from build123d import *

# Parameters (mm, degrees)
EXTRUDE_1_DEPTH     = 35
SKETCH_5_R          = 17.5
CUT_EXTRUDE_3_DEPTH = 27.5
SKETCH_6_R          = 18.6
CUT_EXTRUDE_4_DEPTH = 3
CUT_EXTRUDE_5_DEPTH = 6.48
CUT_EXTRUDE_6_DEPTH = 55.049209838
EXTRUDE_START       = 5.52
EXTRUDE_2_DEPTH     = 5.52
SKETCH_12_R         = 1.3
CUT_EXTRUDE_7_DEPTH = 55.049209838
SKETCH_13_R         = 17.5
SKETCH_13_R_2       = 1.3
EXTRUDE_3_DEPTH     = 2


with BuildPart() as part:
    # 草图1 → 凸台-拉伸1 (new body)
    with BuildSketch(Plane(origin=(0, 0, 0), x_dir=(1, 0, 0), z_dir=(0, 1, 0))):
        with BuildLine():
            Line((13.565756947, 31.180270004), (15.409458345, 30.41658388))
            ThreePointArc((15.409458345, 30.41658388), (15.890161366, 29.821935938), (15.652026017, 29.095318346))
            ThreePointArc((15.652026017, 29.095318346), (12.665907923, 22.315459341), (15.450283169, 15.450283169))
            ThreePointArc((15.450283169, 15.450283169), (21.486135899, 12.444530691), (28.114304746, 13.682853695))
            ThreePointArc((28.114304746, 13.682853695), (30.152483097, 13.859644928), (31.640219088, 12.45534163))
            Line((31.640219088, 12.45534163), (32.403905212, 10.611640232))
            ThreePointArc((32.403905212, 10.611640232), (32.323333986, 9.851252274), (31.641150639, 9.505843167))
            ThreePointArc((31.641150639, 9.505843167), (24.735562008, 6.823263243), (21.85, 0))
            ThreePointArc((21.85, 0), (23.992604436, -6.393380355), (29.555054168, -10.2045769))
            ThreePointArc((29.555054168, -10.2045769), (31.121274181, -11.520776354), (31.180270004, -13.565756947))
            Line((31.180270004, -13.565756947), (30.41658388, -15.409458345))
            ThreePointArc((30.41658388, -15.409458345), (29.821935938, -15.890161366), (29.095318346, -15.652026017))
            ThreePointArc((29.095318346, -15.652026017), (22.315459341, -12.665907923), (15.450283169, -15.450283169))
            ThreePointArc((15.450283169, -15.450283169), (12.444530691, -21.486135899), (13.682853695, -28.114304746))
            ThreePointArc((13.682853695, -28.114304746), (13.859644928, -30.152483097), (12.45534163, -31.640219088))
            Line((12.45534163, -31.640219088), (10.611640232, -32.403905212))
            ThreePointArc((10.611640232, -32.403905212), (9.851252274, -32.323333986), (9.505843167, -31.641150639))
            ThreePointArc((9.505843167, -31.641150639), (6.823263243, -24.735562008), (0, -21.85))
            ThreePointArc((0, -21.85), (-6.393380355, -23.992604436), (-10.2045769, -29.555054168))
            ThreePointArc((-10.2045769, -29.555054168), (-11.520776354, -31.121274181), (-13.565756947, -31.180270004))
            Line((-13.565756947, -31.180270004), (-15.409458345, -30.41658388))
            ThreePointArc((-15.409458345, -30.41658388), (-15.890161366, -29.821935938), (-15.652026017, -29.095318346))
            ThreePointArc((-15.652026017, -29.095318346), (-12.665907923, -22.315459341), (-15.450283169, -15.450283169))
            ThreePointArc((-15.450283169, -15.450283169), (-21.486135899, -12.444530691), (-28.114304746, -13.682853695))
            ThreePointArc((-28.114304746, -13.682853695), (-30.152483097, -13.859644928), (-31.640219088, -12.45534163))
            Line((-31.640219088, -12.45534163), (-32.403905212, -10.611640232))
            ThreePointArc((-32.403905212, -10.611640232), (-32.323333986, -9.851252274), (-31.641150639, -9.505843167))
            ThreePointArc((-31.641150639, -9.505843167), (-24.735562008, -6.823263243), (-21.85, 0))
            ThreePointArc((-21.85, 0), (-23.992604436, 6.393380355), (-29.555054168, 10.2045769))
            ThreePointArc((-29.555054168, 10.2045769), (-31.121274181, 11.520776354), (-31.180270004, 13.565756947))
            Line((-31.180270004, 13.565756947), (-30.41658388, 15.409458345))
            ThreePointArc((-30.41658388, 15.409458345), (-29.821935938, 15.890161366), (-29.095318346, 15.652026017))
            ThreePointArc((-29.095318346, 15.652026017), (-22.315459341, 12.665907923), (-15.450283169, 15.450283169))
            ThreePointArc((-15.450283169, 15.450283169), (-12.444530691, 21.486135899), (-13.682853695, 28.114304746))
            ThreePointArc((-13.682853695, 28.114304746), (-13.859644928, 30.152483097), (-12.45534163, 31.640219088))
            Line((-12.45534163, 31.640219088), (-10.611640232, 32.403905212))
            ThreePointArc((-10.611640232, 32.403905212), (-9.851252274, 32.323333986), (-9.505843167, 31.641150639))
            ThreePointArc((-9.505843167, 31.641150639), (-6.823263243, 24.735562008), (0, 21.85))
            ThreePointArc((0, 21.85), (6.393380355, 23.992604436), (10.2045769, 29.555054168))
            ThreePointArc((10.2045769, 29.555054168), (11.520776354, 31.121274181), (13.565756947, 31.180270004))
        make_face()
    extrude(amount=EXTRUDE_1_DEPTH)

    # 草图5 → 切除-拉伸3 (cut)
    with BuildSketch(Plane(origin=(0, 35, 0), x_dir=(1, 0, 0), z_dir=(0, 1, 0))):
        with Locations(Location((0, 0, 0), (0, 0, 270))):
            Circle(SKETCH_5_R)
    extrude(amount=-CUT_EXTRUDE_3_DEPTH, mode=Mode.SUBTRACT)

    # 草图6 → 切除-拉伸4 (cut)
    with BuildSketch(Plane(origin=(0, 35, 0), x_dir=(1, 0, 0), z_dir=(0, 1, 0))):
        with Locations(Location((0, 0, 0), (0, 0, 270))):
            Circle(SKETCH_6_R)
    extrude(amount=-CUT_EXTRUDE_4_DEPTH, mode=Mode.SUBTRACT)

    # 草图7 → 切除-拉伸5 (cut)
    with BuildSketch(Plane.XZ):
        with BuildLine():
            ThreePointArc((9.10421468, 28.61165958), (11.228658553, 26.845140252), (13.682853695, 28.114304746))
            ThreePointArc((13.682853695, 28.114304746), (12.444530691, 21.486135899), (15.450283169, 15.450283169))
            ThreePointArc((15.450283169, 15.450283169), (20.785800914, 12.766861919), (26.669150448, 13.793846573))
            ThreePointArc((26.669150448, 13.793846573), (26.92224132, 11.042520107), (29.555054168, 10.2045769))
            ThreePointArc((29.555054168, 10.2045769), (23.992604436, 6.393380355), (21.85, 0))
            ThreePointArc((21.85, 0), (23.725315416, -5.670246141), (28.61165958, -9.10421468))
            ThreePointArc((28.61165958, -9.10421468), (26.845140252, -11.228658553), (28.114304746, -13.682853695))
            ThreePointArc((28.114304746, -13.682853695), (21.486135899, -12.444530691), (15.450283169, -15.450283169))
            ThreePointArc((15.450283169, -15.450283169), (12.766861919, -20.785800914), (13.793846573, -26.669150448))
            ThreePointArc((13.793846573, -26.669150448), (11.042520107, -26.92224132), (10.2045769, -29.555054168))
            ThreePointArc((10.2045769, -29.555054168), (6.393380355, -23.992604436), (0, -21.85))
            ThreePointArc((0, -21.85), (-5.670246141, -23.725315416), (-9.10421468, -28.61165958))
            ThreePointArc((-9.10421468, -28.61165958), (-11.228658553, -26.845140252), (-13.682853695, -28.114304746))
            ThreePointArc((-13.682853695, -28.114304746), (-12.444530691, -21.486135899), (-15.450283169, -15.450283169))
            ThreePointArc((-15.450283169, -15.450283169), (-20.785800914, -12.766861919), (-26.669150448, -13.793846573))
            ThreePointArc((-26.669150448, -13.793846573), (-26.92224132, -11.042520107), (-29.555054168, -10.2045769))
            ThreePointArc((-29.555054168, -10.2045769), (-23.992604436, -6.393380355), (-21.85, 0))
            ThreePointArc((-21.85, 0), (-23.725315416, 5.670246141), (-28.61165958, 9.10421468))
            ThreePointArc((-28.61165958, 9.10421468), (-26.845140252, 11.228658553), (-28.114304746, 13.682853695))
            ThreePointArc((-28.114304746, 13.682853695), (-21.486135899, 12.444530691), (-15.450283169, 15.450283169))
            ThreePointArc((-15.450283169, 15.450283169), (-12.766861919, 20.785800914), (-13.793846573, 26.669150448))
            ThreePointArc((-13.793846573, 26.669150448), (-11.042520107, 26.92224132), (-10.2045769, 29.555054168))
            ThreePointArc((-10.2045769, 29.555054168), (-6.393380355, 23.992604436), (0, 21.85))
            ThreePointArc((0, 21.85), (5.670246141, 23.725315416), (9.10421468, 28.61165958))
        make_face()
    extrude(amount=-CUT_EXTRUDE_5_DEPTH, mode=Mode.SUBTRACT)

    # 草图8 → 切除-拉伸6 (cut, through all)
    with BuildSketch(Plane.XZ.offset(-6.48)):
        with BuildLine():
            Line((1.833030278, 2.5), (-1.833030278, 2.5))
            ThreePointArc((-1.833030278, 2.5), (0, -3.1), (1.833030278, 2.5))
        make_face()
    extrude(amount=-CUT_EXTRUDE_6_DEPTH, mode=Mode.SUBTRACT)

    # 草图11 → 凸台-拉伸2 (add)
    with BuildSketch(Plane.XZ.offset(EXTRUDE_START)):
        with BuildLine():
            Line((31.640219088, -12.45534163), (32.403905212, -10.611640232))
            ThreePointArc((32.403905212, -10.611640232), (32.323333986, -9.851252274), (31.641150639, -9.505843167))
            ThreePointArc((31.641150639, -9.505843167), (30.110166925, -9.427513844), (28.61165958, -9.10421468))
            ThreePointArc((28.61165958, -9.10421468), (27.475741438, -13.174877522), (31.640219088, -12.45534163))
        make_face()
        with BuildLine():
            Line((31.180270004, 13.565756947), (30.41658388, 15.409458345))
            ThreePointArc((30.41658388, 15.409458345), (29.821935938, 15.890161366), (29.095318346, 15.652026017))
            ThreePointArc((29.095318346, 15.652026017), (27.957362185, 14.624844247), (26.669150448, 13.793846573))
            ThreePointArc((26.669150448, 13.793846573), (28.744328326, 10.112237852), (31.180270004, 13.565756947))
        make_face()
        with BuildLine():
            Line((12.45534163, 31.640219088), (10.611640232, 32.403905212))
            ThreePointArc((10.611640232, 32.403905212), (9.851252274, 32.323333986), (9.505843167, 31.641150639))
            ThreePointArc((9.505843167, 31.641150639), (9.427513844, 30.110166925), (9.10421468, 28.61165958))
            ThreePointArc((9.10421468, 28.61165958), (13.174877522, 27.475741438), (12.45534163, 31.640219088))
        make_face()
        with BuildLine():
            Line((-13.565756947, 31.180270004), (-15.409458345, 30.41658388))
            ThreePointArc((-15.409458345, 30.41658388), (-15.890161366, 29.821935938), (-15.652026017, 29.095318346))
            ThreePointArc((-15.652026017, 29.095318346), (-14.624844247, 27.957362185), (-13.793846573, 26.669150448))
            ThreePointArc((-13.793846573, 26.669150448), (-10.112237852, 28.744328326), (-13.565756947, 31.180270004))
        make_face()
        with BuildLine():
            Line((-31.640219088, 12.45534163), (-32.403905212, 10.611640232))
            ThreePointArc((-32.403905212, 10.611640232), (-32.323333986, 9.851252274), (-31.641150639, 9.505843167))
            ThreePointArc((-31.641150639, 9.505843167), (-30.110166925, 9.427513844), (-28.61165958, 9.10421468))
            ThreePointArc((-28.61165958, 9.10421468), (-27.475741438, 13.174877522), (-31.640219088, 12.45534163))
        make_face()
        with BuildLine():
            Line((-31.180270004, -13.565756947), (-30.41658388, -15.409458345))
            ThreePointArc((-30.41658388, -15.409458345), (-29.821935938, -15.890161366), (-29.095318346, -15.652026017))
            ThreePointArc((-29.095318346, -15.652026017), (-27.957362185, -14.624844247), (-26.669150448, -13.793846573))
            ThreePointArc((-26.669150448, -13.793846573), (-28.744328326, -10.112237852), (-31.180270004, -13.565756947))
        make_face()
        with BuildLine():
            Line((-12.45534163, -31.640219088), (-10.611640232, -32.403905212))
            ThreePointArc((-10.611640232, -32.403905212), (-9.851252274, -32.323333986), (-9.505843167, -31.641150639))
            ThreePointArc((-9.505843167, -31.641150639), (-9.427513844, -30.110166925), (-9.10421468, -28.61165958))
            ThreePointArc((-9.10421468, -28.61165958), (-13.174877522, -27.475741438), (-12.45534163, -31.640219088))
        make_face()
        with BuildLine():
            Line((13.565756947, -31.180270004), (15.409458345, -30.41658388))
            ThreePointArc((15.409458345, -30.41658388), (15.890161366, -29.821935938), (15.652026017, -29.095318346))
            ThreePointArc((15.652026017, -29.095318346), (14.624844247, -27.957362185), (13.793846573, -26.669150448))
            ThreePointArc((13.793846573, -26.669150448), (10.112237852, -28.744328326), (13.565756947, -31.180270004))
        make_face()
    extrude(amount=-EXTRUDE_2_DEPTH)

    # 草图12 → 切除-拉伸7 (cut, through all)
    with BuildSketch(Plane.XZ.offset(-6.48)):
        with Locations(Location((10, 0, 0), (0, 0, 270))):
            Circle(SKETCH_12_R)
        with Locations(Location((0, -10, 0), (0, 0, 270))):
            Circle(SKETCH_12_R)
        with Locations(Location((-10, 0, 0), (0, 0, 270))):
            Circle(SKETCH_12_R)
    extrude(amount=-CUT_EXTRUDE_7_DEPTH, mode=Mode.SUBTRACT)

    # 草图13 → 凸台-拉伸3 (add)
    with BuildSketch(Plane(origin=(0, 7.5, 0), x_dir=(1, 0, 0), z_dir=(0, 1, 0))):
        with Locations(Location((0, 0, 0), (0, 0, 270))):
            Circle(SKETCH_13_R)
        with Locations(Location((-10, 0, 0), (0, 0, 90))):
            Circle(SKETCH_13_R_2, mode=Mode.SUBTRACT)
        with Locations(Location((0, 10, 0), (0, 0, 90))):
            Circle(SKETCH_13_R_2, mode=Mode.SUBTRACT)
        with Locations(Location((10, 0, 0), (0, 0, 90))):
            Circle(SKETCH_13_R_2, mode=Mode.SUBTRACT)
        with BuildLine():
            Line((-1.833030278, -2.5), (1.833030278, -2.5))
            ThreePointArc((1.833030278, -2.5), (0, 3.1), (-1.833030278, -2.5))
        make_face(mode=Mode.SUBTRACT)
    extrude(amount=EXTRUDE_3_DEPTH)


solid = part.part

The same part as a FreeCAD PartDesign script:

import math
import FreeCAD as App
import Part
import Sketcher
from FreeCAD import Vector
Q = App.Units.Quantity

doc = App.newDocument("Part")
body = doc.addObject("PartDesign::Body", "Body")

# Sketch on XZ plane
sketch1 = doc.addObject("Sketcher::SketchObject", "Sketch")
body.addObject(sketch1)
sketch1.AttachmentSupport = (doc.XZ_Plane, [""])
sketch1.MapMode = "FlatFace"
sketch1.addGeometry([
    Part.LineSegment(Vector(15.4, -30.4, 0), Vector(13.6, -31.2, 0)),  # 0
    Part.ArcOfCircle(Part.Circle(Vector(12.6, -28.9, 0), Vector(0, 0, 1), 2.5), math.radians(-164), math.radians(-67)),  # 1
    Part.ArcOfCircle(Part.Circle(Vector(0, -32.5, 0), Vector(0, 0, 1), 10.6), math.radians(16), math.radians(90)),  # 2
    Part.ArcOfCircle(Part.Circle(Vector(0, -31.4, 0), Vector(0, 0, 1), 9.5), math.radians(90), math.radians(182)),  # 3
    Part.ArcOfCircle(Part.Circle(Vector(-10.3, -31.7, 0), Vector(0, 0, 1), 0.8), math.radians(-113), math.radians(2)),  # 4
    Part.LineSegment(Vector(-10.6, -32.4, 0), Vector(-12.5, -31.6, 0)),  # 5
    Part.ArcOfCircle(Part.Circle(Vector(-11.5, -29.3, 0), Vector(0, 0, 1), 2.5), math.radians(151), math.radians(248)),  # 6
    Part.ArcOfCircle(Part.Circle(Vector(-23, -23, 0), Vector(0, 0, 1), 10.6), math.radians(-29), math.radians(45)),  # 7
    Part.ArcOfCircle(Part.Circle(Vector(-22.2, -22.2, 0), Vector(0, 0, 1), 9.5), math.radians(45), math.radians(137)),  # 8
    Part.ArcOfCircle(Part.Circle(Vector(-29.7, -15.1, 0), Vector(0, 0, 1), 0.8), math.radians(-158), math.radians(-43)),  # 9
    Part.LineSegment(Vector(-30.4, -15.4, 0), Vector(-31.2, -13.6, 0)),  # 10
    Part.ArcOfCircle(Part.Circle(Vector(-28.9, -12.6, 0), Vector(0, 0, 1), 2.5), math.radians(106), math.radians(203)),  # 11
    Part.ArcOfCircle(Part.Circle(Vector(-32.5, 0, 0), Vector(0, 0, 1), 10.6), math.radians(-74), math.radians(0)),  # 12
    Part.ArcOfCircle(Part.Circle(Vector(-31.4, 0, 0), Vector(0, 0, 1), 9.5), math.radians(0), math.radians(92)),  # 13
    Part.ArcOfCircle(Part.Circle(Vector(-31.7, 10.3, 0), Vector(0, 0, 1), 0.8), math.radians(157), math.radians(272)),  # 14
    Part.LineSegment(Vector(-32.4, 10.6, 0), Vector(-31.6, 12.5, 0)),  # 15
    Part.ArcOfCircle(Part.Circle(Vector(-29.3, 11.5, 0), Vector(0, 0, 1), 2.5), math.radians(61), math.radians(158)),  # 16
    Part.ArcOfCircle(Part.Circle(Vector(-23, 23, 0), Vector(0, 0, 1), 10.6), math.radians(-119), math.radians(-45)),  # 17
    Part.ArcOfCircle(Part.Circle(Vector(-22.2, 22.2, 0), Vector(0, 0, 1), 9.5), math.radians(-45), math.radians(47)),  # 18
    Part.ArcOfCircle(Part.Circle(Vector(-15.1, 29.7, 0), Vector(0, 0, 1), 0.8), math.radians(112), math.radians(227)),  # 19
    Part.LineSegment(Vector(-15.4, 30.4, 0), Vector(-13.6, 31.2, 0)),  # 20
    Part.ArcOfCircle(Part.Circle(Vector(-12.6, 28.9, 0), Vector(0, 0, 1), 2.5), math.radians(16), math.radians(113)),  # 21
    Part.ArcOfCircle(Part.Circle(Vector(0, 32.5, 0), Vector(0, 0, 1), 10.6), math.radians(-164), math.radians(-90)),  # 22
    Part.ArcOfCircle(Part.Circle(Vector(0, 31.4, 0), Vector(0, 0, 1), 9.5), math.radians(-90), math.radians(2)),  # 23
    Part.ArcOfCircle(Part.Circle(Vector(10.3, 31.7, 0), Vector(0, 0, 1), 0.8), math.radians(67), math.radians(182)),  # 24
    Part.LineSegment(Vector(10.6, 32.4, 0), Vector(12.5, 31.6, 0)),  # 25
    Part.ArcOfCircle(Part.Circle(Vector(11.5, 29.3, 0), Vector(0, 0, 1), 2.5), math.radians(-29), math.radians(68)),  # 26
    Part.ArcOfCircle(Part.Circle(Vector(23, 23, 0), Vector(0, 0, 1), 10.6), math.radians(151), math.radians(225)),  # 27
    Part.ArcOfCircle(Part.Circle(Vector(22.2, 22.2, 0), Vector(0, 0, 1), 9.5), math.radians(-135), math.radians(-43)),  # 28
    Part.ArcOfCircle(Part.Circle(Vector(29.7, 15.1, 0), Vector(0, 0, 1), 0.8), math.radians(22), math.radians(137)),  # 29
    Part.LineSegment(Vector(30.4, 15.4, 0), Vector(31.2, 13.6, 0)),  # 30
    Part.ArcOfCircle(Part.Circle(Vector(28.9, 12.6, 0), Vector(0, 0, 1), 2.5), math.radians(-74), math.radians(23)),  # 31
    Part.ArcOfCircle(Part.Circle(Vector(32.5, 0, 0), Vector(0, 0, 1), 10.6), math.radians(106), math.radians(180)),  # 32
    Part.ArcOfCircle(Part.Circle(Vector(31.4, 0, 0), Vector(0, 0, 1), 9.5), math.radians(-180), math.radians(-88)),  # 33
    Part.ArcOfCircle(Part.Circle(Vector(31.7, -10.3, 0), Vector(0, 0, 1), 0.8), math.radians(-23), math.radians(92)),  # 34
    Part.LineSegment(Vector(32.4, -10.6, 0), Vector(31.6, -12.5, 0)),  # 35
    Part.ArcOfCircle(Part.Circle(Vector(29.3, -11.5, 0), Vector(0, 0, 1), 2.5), math.radians(-119), math.radians(-22)),  # 36
    Part.ArcOfCircle(Part.Circle(Vector(23, -23, 0), Vector(0, 0, 1), 10.6), math.radians(61), math.radians(135)),  # 37
    Part.ArcOfCircle(Part.Circle(Vector(22.2, -22.2, 0), Vector(0, 0, 1), 9.5), math.radians(135), math.radians(227)),  # 38
    Part.ArcOfCircle(Part.Circle(Vector(15.1, -29.7, 0), Vector(0, 0, 1), 0.8), math.radians(-68), math.radians(47)),  # 39
], False)
sketch1.addConstraint([
    Sketcher.Constraint("Tangent", 0, 2, 1, 2),
    Sketcher.Constraint("Tangent", 1, 1, 2, 1),
    Sketcher.Constraint("Tangent", 2, 2, 3, 1),
    Sketcher.Constraint("Tangent", 3, 2, 4, 2),
    Sketcher.Constraint("Tangent", 4, 1, 5, 1),
    Sketcher.Constraint("Tangent", 5, 2, 6, 2),
    Sketcher.Constraint("Tangent", 6, 1, 7, 1),
    Sketcher.Constraint("Tangent", 7, 2, 8, 1),
    Sketcher.Constraint("Tangent", 8, 2, 9, 2),
    Sketcher.Constraint("Tangent", 9, 1, 10, 1),
    Sketcher.Constraint("Tangent", 10, 2, 11, 2),
    Sketcher.Constraint("Tangent", 11, 1, 12, 1),
    Sketcher.Constraint("Tangent", 12, 2, 13, 1),
    Sketcher.Constraint("Tangent", 13, 2, 14, 2),
    Sketcher.Constraint("Tangent", 14, 1, 15, 1),
    Sketcher.Constraint("Tangent", 15, 2, 16, 2),
    Sketcher.Constraint("Tangent", 16, 1, 17, 1),
    Sketcher.Constraint("Tangent", 17, 2, 18, 1),
    Sketcher.Constraint("Tangent", 18, 2, 19, 2),
    Sketcher.Constraint("Tangent", 19, 1, 20, 1),
    Sketcher.Constraint("Tangent", 20, 2, 21, 2),
    Sketcher.Constraint("Tangent", 21, 1, 22, 1),
    Sketcher.Constraint("Tangent", 22, 2, 23, 1),
    Sketcher.Constraint("Tangent", 23, 2, 24, 2),
    Sketcher.Constraint("Tangent", 24, 1, 25, 1),
    Sketcher.Constraint("Tangent", 25, 2, 26, 2),
    Sketcher.Constraint("Tangent", 26, 1, 27, 1),
    Sketcher.Constraint("Tangent", 27, 2, 28, 1),
    Sketcher.Constraint("Tangent", 28, 2, 29, 2),
    Sketcher.Constraint("Tangent", 29, 1, 30, 1),
    Sketcher.Constraint("Tangent", 30, 2, 31, 2),
    Sketcher.Constraint("Tangent", 31, 1, 32, 1),
    Sketcher.Constraint("Tangent", 32, 2, 33, 1),
    Sketcher.Constraint("Tangent", 33, 2, 34, 2),
    Sketcher.Constraint("Tangent", 34, 1, 35, 1),
    Sketcher.Constraint("Tangent", 35, 2, 36, 2),
    Sketcher.Constraint("Tangent", 36, 1, 37, 1),
    Sketcher.Constraint("Tangent", 37, 2, 38, 1),
    Sketcher.Constraint("Tangent", 38, 2, 39, 2),
    Sketcher.Constraint("Tangent", 39, 1, 0, 1),
    Sketcher.Constraint("Equal", 1, 6),
    Sketcher.Constraint("Equal", 2, 7),
    Sketcher.Constraint("Equal", 3, 8),
    Sketcher.Constraint("Equal", 4, 9),
    Sketcher.Constraint("Equal", 6, 11),
    Sketcher.Constraint("Equal", 7, 12),
    Sketcher.Constraint("Equal", 8, 13),
    Sketcher.Constraint("Equal", 9, 14),
    Sketcher.Constraint("Equal", 11, 16),
    Sketcher.Constraint("Equal", 12, 17),
    Sketcher.Constraint("Equal", 13, 18),
    Sketcher.Constraint("Equal", 14, 19),
    Sketcher.Constraint("Equal", 16, 21),
    Sketcher.Constraint("Equal", 17, 22),
    Sketcher.Constraint("Equal", 18, 23),
    Sketcher.Constraint("Equal", 19, 24),
    Sketcher.Constraint("Equal", 21, 26),
    Sketcher.Constraint("Equal", 22, 27),
    Sketcher.Constraint("Equal", 23, 28),
    Sketcher.Constraint("Equal", 24, 29),
    Sketcher.Constraint("Equal", 26, 31),
    Sketcher.Constraint("Equal", 27, 32),
    Sketcher.Constraint("Equal", 28, 33),
    Sketcher.Constraint("Equal", 29, 34),
    Sketcher.Constraint("Equal", 31, 36),
    Sketcher.Constraint("Equal", 32, 37),
    Sketcher.Constraint("Equal", 33, 38),
    Sketcher.Constraint("Equal", 34, 39),
    Sketcher.Constraint("Symmetric", 1, 3, 21, 3, -1, 1),
    Sketcher.Constraint("Symmetric", 3, 3, 23, 3, -1, 1),
    Sketcher.Constraint("Symmetric", 6, 3, 26, 3, -1, 1),
    Sketcher.Constraint("Symmetric", 8, 3, 28, 3, -1, 1),
    Sketcher.Constraint("Symmetric", 11, 3, 31, 3, -1, 1),
    Sketcher.Constraint("Symmetric", 13, 3, 33, 3, -1, 1),
    Sketcher.Constraint("Symmetric", 16, 3, 36, 3, -1, 1),
    Sketcher.Constraint("Symmetric", 18, 3, 38, 3, -1, 1),
    Sketcher.Constraint("Symmetric", 17, 3, 27, 3, -2),
    Sketcher.Constraint("PointOnObject", 2, 3, -2),
    Sketcher.Constraint("PointOnObject", 3, 3, -2),
    Sketcher.Constraint("PointOnObject", 12, 3, -1),
    Sketcher.Constraint("PointOnObject", 13, 3, -1),
    Sketcher.Constraint("Perpendicular", 0, 10),
    Sketcher.Constraint("Perpendicular", 5, 15),
    Sketcher.Constraint("Perpendicular", 10, 20),
    Sketcher.Constraint("Perpendicular", 15, 25),
    Sketcher.Constraint("Perpendicular", 20, 30),
    Sketcher.Constraint("Perpendicular", 25, 35),
    Sketcher.Constraint("Horizontal", 18, 3, 28, 3),
    Sketcher.Constraint("Equal", 0, 5),
    Sketcher.Constraint("Equal", 5, 10),
    Sketcher.Constraint("Equal", 10, 15),
    Sketcher.Constraint("Radius", 1, Q("2.5 mm")),
    Sketcher.Constraint("Radius", 4, Q("0.8 mm")),
    Sketcher.Constraint("Radius", 2, Q("10.61 mm")),
    Sketcher.Constraint("Radius", 3, Q("9.51 mm")),
    Sketcher.Constraint("Angle", 0, Q("-157.5 deg")),
    Sketcher.Constraint("Angle", 5, Q("157.5 deg")),
    Sketcher.Constraint("DistanceY", 2, 3, -1, 1, Q("32.46 mm")),
    Sketcher.Constraint("DistanceX", 12, 3, -1, 1, Q("32.46 mm")),
    Sketcher.Constraint("DistanceY", 4, 3, -1, 1, Q("31.664802 mm")),
    Sketcher.Constraint("DistanceX", 14, 3, -1, 1, Q("31.664802 mm")),
    Sketcher.Constraint("Distance", 0, Q("1.995608 mm")),
    Sketcher.Constraint("DistanceX", -1, 1, 1, 3, Q("12.609048 mm")),
])
pad1 = doc.addObject("PartDesign::Pad", "Pad")
body.addObject(pad1)
pad1.Profile = sketch1
pad1.Length = 35
pad1.Reversed = True

# Sketch on XZ plane
sketch2 = doc.addObject("Sketcher::SketchObject", "Sketch001")
body.addObject(sketch2)
sketch2.AttachmentSupport = (doc.XZ_Plane, [""])
sketch2.MapMode = "FlatFace"
sketch2.AttachmentOffset = App.Placement(Vector(0, 0, -35), App.Rotation())
sketch2.addGeometry(Part.Circle(Vector(0, 0, 0), Vector(0, 0, 1), 18), False)
sketch2.addConstraint([
    Sketcher.Constraint("Coincident", 0, 3, -1, 1),
    Sketcher.Constraint("Diameter", 0, Q("35 mm")),
])
pocket1 = doc.addObject("PartDesign::Pocket", "Pocket")
body.addObject(pocket1)
pocket1.Profile = sketch2
pocket1.Length = 27.5
pocket1.Reversed = True

# Sketch on XZ plane
sketch3 = doc.addObject("Sketcher::SketchObject", "Sketch002")
body.addObject(sketch3)
sketch3.AttachmentSupport = (doc.XZ_Plane, [""])
sketch3.MapMode = "FlatFace"
sketch3.AttachmentOffset = App.Placement(Vector(0, 0, -35), App.Rotation())
sketch3.addGeometry(Part.Circle(Vector(0, 0, 0), Vector(0, 0, 1), 19), False)
sketch3.addConstraint([
    Sketcher.Constraint("Coincident", 0, 3, -1, 1),
    Sketcher.Constraint("Diameter", 0, Q("37.2 mm")),
])
pocket2 = doc.addObject("PartDesign::Pocket", "Pocket001")
body.addObject(pocket2)
pocket2.Profile = sketch3
pocket2.Length = 3
pocket2.Reversed = True

# Sketch on XZ plane
sketch4 = doc.addObject("Sketcher::SketchObject", "Sketch003")
body.addObject(sketch4)
sketch4.AttachmentSupport = (doc.XZ_Plane, [""])
sketch4.MapMode = "FlatFace"
sketch4.addGeometry([
    Part.ArcOfCircle(Part.Circle(Vector(11.5, 29.3, 0), Vector(0, 0, 1), 2.5), math.radians(-163), math.radians(-29)),  # 0
    Part.ArcOfCircle(Part.Circle(Vector(0, 31.4, 0), Vector(0, 0, 1), 9.5), math.radians(-90), math.radians(-17)),  # 1
    Part.ArcOfCircle(Part.Circle(Vector(0, 32.5, 0), Vector(0, 0, 1), 10.6), math.radians(-164), math.radians(-90)),  # 2
    Part.ArcOfCircle(Part.Circle(Vector(-12.6, 28.9, 0), Vector(0, 0, 1), 2.5), math.radians(-118), math.radians(16)),  # 3
    Part.ArcOfCircle(Part.Circle(Vector(-22.2, 22.2, 0), Vector(0, 0, 1), 9.5), math.radians(-45), math.radians(28)),  # 4
    Part.ArcOfCircle(Part.Circle(Vector(-23, 23, 0), Vector(0, 0, 1), 10.6), math.radians(-119), math.radians(-45)),  # 5
    Part.ArcOfCircle(Part.Circle(Vector(-29.3, 11.5, 0), Vector(0, 0, 1), 2.5), math.radians(-73), math.radians(61)),  # 6
    Part.ArcOfCircle(Part.Circle(Vector(-31.4, 0, 0), Vector(0, 0, 1), 9.5), math.radians(0), math.radians(73)),  # 7
    Part.ArcOfCircle(Part.Circle(Vector(-32.5, 0, 0), Vector(0, 0, 1), 10.6), math.radians(-74), math.radians(0)),  # 8
    Part.ArcOfCircle(Part.Circle(Vector(-28.9, -12.6, 0), Vector(0, 0, 1), 2.5), math.radians(-28), math.radians(106)),  # 9
    Part.ArcOfCircle(Part.Circle(Vector(-22.2, -22.2, 0), Vector(0, 0, 1), 9.5), math.radians(45), math.radians(118)),  # 10
    Part.ArcOfCircle(Part.Circle(Vector(-23, -23, 0), Vector(0, 0, 1), 10.6), math.radians(-29), math.radians(45)),  # 11
    Part.ArcOfCircle(Part.Circle(Vector(-11.5, -29.3, 0), Vector(0, 0, 1), 2.5), math.radians(17), math.radians(151)),  # 12
    Part.ArcOfCircle(Part.Circle(Vector(0, -31.4, 0), Vector(0, 0, 1), 9.5), math.radians(90), math.radians(163)),  # 13
    Part.ArcOfCircle(Part.Circle(Vector(0, -32.5, 0), Vector(0, 0, 1), 10.6), math.radians(16), math.radians(90)),  # 14
    Part.ArcOfCircle(Part.Circle(Vector(12.6, -28.9, 0), Vector(0, 0, 1), 2.5), math.radians(62), math.radians(196)),  # 15
    Part.ArcOfCircle(Part.Circle(Vector(22.2, -22.2, 0), Vector(0, 0, 1), 9.5), math.radians(135), math.radians(208)),  # 16
    Part.ArcOfCircle(Part.Circle(Vector(23, -23, 0), Vector(0, 0, 1), 10.6), math.radians(61), math.radians(135)),  # 17
    Part.ArcOfCircle(Part.Circle(Vector(29.3, -11.5, 0), Vector(0, 0, 1), 2.5), math.radians(107), math.radians(241)),  # 18
    Part.ArcOfCircle(Part.Circle(Vector(31.4, 0, 0), Vector(0, 0, 1), 9.5), math.radians(-180), math.radians(-107)),  # 19
    Part.ArcOfCircle(Part.Circle(Vector(32.5, 0, 0), Vector(0, 0, 1), 10.6), math.radians(106), math.radians(180)),  # 20
    Part.ArcOfCircle(Part.Circle(Vector(28.9, 12.6, 0), Vector(0, 0, 1), 2.5), math.radians(152), math.radians(286)),  # 21
    Part.ArcOfCircle(Part.Circle(Vector(22.2, 22.2, 0), Vector(0, 0, 1), 9.5), math.radians(-135), math.radians(-62)),  # 22
    Part.ArcOfCircle(Part.Circle(Vector(23, 23, 0), Vector(0, 0, 1), 10.6), math.radians(151), math.radians(225)),  # 23
], False)
sketch4.addConstraint([
    Sketcher.Constraint("Coincident", 0, 1, 1, 2),
    Sketcher.Constraint("Tangent", 1, 1, 2, 2),
    Sketcher.Constraint("Tangent", 2, 1, 3, 2),
    Sketcher.Constraint("Coincident", 3, 1, 4, 2),
    Sketcher.Constraint("Tangent", 4, 1, 5, 2),
    Sketcher.Constraint("Tangent", 5, 1, 6, 2),
    Sketcher.Constraint("Coincident", 6, 1, 7, 2),
    Sketcher.Constraint("Tangent", 7, 1, 8, 2),
    Sketcher.Constraint("Tangent", 8, 1, 9, 2),
    Sketcher.Constraint("Coincident", 9, 1, 10, 2),
    Sketcher.Constraint("Tangent", 10, 1, 11, 2),
    Sketcher.Constraint("Tangent", 11, 1, 12, 2),
    Sketcher.Constraint("Coincident", 12, 1, 13, 2),
    Sketcher.Constraint("Tangent", 13, 1, 14, 2),
    Sketcher.Constraint("Tangent", 14, 1, 15, 2),
    Sketcher.Constraint("Coincident", 15, 1, 16, 2),
    Sketcher.Constraint("Tangent", 16, 1, 17, 2),
    Sketcher.Constraint("Tangent", 17, 1, 18, 2),
    Sketcher.Constraint("Coincident", 18, 1, 19, 2),
    Sketcher.Constraint("Tangent", 19, 1, 20, 2),
    Sketcher.Constraint("Tangent", 20, 1, 21, 2),
    Sketcher.Constraint("Coincident", 21, 1, 22, 2),
    Sketcher.Constraint("Tangent", 22, 1, 23, 2),
    Sketcher.Constraint("Tangent", 23, 1, 0, 2),
    Sketcher.Constraint("Equal", 0, 3),
    Sketcher.Constraint("Equal", 1, 4),
    Sketcher.Constraint("Equal", 2, 5),
    Sketcher.Constraint("Equal", 3, 6),
    Sketcher.Constraint("Equal", 4, 7),
    Sketcher.Constraint("Equal", 5, 8),
    Sketcher.Constraint("Equal", 6, 9),
    Sketcher.Constraint("Equal", 7, 10),
    Sketcher.Constraint("Equal", 8, 11),
    Sketcher.Constraint("Equal", 9, 12),
    Sketcher.Constraint("Equal", 10, 13),
    Sketcher.Constraint("Equal", 11, 14),
    Sketcher.Constraint("Equal", 12, 15),
    Sketcher.Constraint("Equal", 13, 16),
    Sketcher.Constraint("Equal", 14, 17),
    Sketcher.Constraint("Equal", 15, 18),
    Sketcher.Constraint("Equal", 16, 19),
    Sketcher.Constraint("Equal", 17, 20),
    Sketcher.Constraint("Equal", 18, 21),
    Sketcher.Constraint("Equal", 19, 22),
    Sketcher.Constraint("Equal", 20, 23),
    Sketcher.Constraint("Symmetric", 0, 3, 12, 3, -1, 1),
    Sketcher.Constraint("Symmetric", 1, 3, 13, 3, -1, 1),
    Sketcher.Constraint("Symmetric", 3, 3, 15, 3, -1, 1),
    Sketcher.Constraint("Symmetric", 4, 3, 16, 3, -1, 1),
    Sketcher.Constraint("Symmetric", 6, 3, 18, 3, -1, 1),
    Sketcher.Constraint("Symmetric", 7, 3, 19, 3, -1, 1),
    Sketcher.Constraint("Symmetric", 9, 3, 21, 3, -1, 1),
    Sketcher.Constraint("Symmetric", 10, 3, 22, 3, -1, 1),
    Sketcher.Constraint("Symmetric", 10, 3, 16, 3, -2),
    Sketcher.Constraint("PointOnObject", 1, 3, -2),
    Sketcher.Constraint("PointOnObject", 2, 3, -2),
    Sketcher.Constraint("PointOnObject", 7, 3, -1),
    Sketcher.Constraint("PointOnObject", 8, 3, -1),
    Sketcher.Constraint("Horizontal", 11, 3, 17, 3),
    Sketcher.Constraint("Radius", 0, Q("2.5 mm")),
    Sketcher.Constraint("Radius", 1, Q("9.51 mm")),
    Sketcher.Constraint("Radius", 2, Q("10.61 mm")),
    Sketcher.Constraint("DistanceY", -1, 1, 1, 3, Q("31.36 mm")),
    Sketcher.Constraint("DistanceX", 7, 3, -1, 1, Q("31.36 mm")),
    Sketcher.Constraint("DistanceX", 4, 3, 0, 3, Q("33.673502 mm")),
    Sketcher.Constraint("DistanceY", 10, 3, 6, 3, Q("33.673502 mm")),
    Sketcher.Constraint("DistanceX", 3, 1, 3, 3, Q("1.184798 mm")),
    Sketcher.Constraint("DistanceY", 9, 1, 9, 3, Q("1.184798 mm")),
    Sketcher.Constraint("DistanceY", -1, 1, 0, 3, Q("29.33052 mm")),
    Sketcher.Constraint("DistanceX", 3, 3, -1, 1, Q("12.609048 mm")),
    Sketcher.Constraint("DistanceX", 4, 3, -1, 1, Q("22.174869 mm")),
])
pocket3 = doc.addObject("PartDesign::Pocket", "Pocket002")
body.addObject(pocket3)
pocket3.Profile = sketch4
pocket3.Length = 6.48

# Sketch on XZ plane
sketch5 = doc.addObject("Sketcher::SketchObject", "Sketch004")
body.addObject(sketch5)
sketch5.AttachmentSupport = (doc.XZ_Plane, [""])
sketch5.MapMode = "FlatFace"
sketch5.AttachmentOffset = App.Placement(Vector(0, 0, -6.48), App.Rotation())
sketch5.addGeometry([
    Part.LineSegment(Vector(1.8, 2.5, 0), Vector(-1.8, 2.5, 0)),
    Part.ArcOfCircle(Part.Circle(Vector(0, 0, 0), Vector(0, 0, 1), 3.1), math.radians(126), math.radians(414)),
], False)
sketch5.addConstraint([
    Sketcher.Constraint("Coincident", 0, 1, 1, 2),
    Sketcher.Constraint("Coincident", 1, 1, 0, 2),
    Sketcher.Constraint("Horizontal", 0),
    Sketcher.Constraint("Coincident", 1, 3, -1, 1),
    Sketcher.Constraint("Radius", 1, Q("3.1 mm")),
    Sketcher.Constraint("DistanceY", -1, 1, 0, 1, Q("2.5 mm")),
])
pocket4 = doc.addObject("PartDesign::Pocket", "Pocket003")
body.addObject(pocket4)
pocket4.Profile = sketch5
pocket4.Type = "ThroughAll"

# Sketch on XZ plane
sketch6 = doc.addObject("Sketcher::SketchObject", "Sketch005")
body.addObject(sketch6)
sketch6.AttachmentSupport = (doc.XZ_Plane, [""])
sketch6.MapMode = "FlatFace"
sketch6.AttachmentOffset = App.Placement(Vector(0, 0, 5.52), App.Rotation())
sketch6.addGeometry([
    Part.LineSegment(Vector(31.6, -12.5, 0), Vector(32.4, -10.6, 0)),  # 0
    Part.ArcOfCircle(Part.Circle(Vector(31.7, -10.3, 0), Vector(0, 0, 1), 0.8), math.radians(-23), math.radians(92)),  # 1
    Part.ArcOfCircle(Part.Circle(Vector(31.4, 0, 0), Vector(0, 0, 1), 9.5), math.radians(-106.8), math.radians(-88.31)),  # 2
    Part.ArcOfCircle(Part.Circle(Vector(29.3, -11.5, 0), Vector(0, 0, 1), 2.5), math.radians(107), math.radians(337)),  # 3
    Part.LineSegment(Vector(31.2, 13.6, 0), Vector(30.4, 15.4, 0)),  # 4
    Part.ArcOfCircle(Part.Circle(Vector(29.7, 15.1, 0), Vector(0, 0, 1), 0.8), math.radians(22), math.radians(137)),  # 5
    Part.ArcOfCircle(Part.Circle(Vector(22.2, 22.2, 0), Vector(0, 0, 1), 9.5), math.radians(-61.8), math.radians(-43.31)),  # 6
    Part.ArcOfCircle(Part.Circle(Vector(28.9, 12.6, 0), Vector(0, 0, 1), 2.5), math.radians(152), math.radians(383)),  # 7
    Part.LineSegment(Vector(12.5, 31.6, 0), Vector(10.6, 32.4, 0)),  # 8
    Part.ArcOfCircle(Part.Circle(Vector(10.3, 31.7, 0), Vector(0, 0, 1), 0.8), math.radians(67), math.radians(182)),  # 9
    Part.ArcOfCircle(Part.Circle(Vector(0, 31.4, 0), Vector(0, 0, 1), 9.5), math.radians(-16.8), math.radians(1.69)),  # 10
    Part.ArcOfCircle(Part.Circle(Vector(11.5, 29.3, 0), Vector(0, 0, 1), 2.5), math.radians(-163), math.radians(67)),  # 11
    Part.LineSegment(Vector(-13.6, 31.2, 0), Vector(-15.4, 30.4, 0)),  # 12
    Part.ArcOfCircle(Part.Circle(Vector(-15.1, 29.7, 0), Vector(0, 0, 1), 0.8), math.radians(112), math.radians(227)),  # 13
    Part.ArcOfCircle(Part.Circle(Vector(-22.2, 22.2, 0), Vector(0, 0, 1), 9.5), math.radians(28.2), math.radians(46.69)),  # 14
    Part.ArcOfCircle(Part.Circle(Vector(-12.6, 28.9, 0), Vector(0, 0, 1), 2.5), math.radians(-118), math.radians(113)),  # 15
    Part.LineSegment(Vector(-31.6, 12.5, 0), Vector(-32.4, 10.6, 0)),  # 16
    Part.ArcOfCircle(Part.Circle(Vector(-31.7, 10.3, 0), Vector(0, 0, 1), 0.8), math.radians(157), math.radians(272)),  # 17
    Part.ArcOfCircle(Part.Circle(Vector(-31.4, 0, 0), Vector(0, 0, 1), 9.5), math.radians(73.2), math.radians(91.69)),  # 18
    Part.ArcOfCircle(Part.Circle(Vector(-29.3, 11.5, 0), Vector(0, 0, 1), 2.5), math.radians(-73), math.radians(157)),  # 19
    Part.LineSegment(Vector(-31.2, -13.6, 0), Vector(-30.4, -15.4, 0)),  # 20
    Part.ArcOfCircle(Part.Circle(Vector(-29.7, -15.1, 0), Vector(0, 0, 1), 0.8), math.radians(-158), math.radians(-43)),  # 21
    Part.ArcOfCircle(Part.Circle(Vector(-22.2, -22.2, 0), Vector(0, 0, 1), 9.5), math.radians(118.2), math.radians(136.69)),  # 22
    Part.ArcOfCircle(Part.Circle(Vector(-28.9, -12.6, 0), Vector(0, 0, 1), 2.5), math.radians(-28), math.radians(203)),  # 23
    Part.LineSegment(Vector(-12.5, -31.6, 0), Vector(-10.6, -32.4, 0)),  # 24
    Part.ArcOfCircle(Part.Circle(Vector(-10.3, -31.7, 0), Vector(0, 0, 1), 0.8), math.radians(-113), math.radians(2)),  # 25
    Part.ArcOfCircle(Part.Circle(Vector(0, -31.4, 0), Vector(0, 0, 1), 9.5), math.radians(163.2), math.radians(181.69)),  # 26
    Part.ArcOfCircle(Part.Circle(Vector(-11.5, -29.3, 0), Vector(0, 0, 1), 2.5), math.radians(17), math.radians(247)),  # 27
    Part.LineSegment(Vector(13.6, -31.2, 0), Vector(15.4, -30.4, 0)),  # 28
    Part.ArcOfCircle(Part.Circle(Vector(15.1, -29.7, 0), Vector(0, 0, 1), 0.8), math.radians(-68), math.radians(47)),  # 29
    Part.ArcOfCircle(Part.Circle(Vector(22.2, -22.2, 0), Vector(0, 0, 1), 9.5), math.radians(-151.8), math.radians(-133.31)),  # 30
    Part.ArcOfCircle(Part.Circle(Vector(12.6, -28.9, 0), Vector(0, 0, 1), 2.5), math.radians(62), math.radians(293)),  # 31
], False)
sketch6.addConstraint([
    Sketcher.Constraint("Tangent", 0, 2, 1, 1),
    Sketcher.Constraint("Tangent", 1, 2, 2, 2),
    Sketcher.Constraint("Coincident", 2, 1, 3, 1),
    Sketcher.Constraint("Tangent", 3, 2, 0, 1),
    Sketcher.Constraint("Tangent", 4, 2, 5, 1),
    Sketcher.Constraint("Tangent", 5, 2, 6, 2),
    Sketcher.Constraint("Coincident", 6, 1, 7, 1),
    Sketcher.Constraint("Tangent", 7, 2, 4, 1),
    Sketcher.Constraint("Tangent", 8, 2, 9, 1),
    Sketcher.Constraint("Tangent", 9, 2, 10, 2),
    Sketcher.Constraint("Coincident", 10, 1, 11, 1),
    Sketcher.Constraint("Tangent", 11, 2, 8, 1),
    Sketcher.Constraint("Tangent", 12, 2, 13, 1),
    Sketcher.Constraint("Tangent", 13, 2, 14, 2),
    Sketcher.Constraint("Coincident", 14, 1, 15, 1),
    Sketcher.Constraint("Tangent", 15, 2, 12, 1),
    Sketcher.Constraint("Tangent", 16, 2, 17, 1),
    Sketcher.Constraint("Tangent", 17, 2, 18, 2),
    Sketcher.Constraint("Coincident", 18, 1, 19, 1),
    Sketcher.Constraint("Tangent", 19, 2, 16, 1),
    Sketcher.Constraint("Tangent", 20, 2, 21, 1),
    Sketcher.Constraint("Tangent", 21, 2, 22, 2),
    Sketcher.Constraint("Coincident", 22, 1, 23, 1),
    Sketcher.Constraint("Tangent", 23, 2, 20, 1),
    Sketcher.Constraint("Tangent", 24, 2, 25, 1),
    Sketcher.Constraint("Tangent", 25, 2, 26, 2),
    Sketcher.Constraint("Coincident", 26, 1, 27, 1),
    Sketcher.Constraint("Tangent", 27, 2, 24, 1),
    Sketcher.Constraint("Tangent", 28, 2, 29, 1),
    Sketcher.Constraint("Tangent", 29, 2, 30, 2),
    Sketcher.Constraint("Coincident", 30, 1, 31, 1),
    Sketcher.Constraint("Tangent", 31, 2, 28, 1),
    Sketcher.Constraint("Equal", 1, 5),
    Sketcher.Constraint("Equal", 2, 6),
    Sketcher.Constraint("Equal", 3, 7),
    Sketcher.Constraint("Equal", 5, 9),
    Sketcher.Constraint("Equal", 6, 10),
    Sketcher.Constraint("Equal", 7, 11),
    Sketcher.Constraint("Equal", 9, 13),
    Sketcher.Constraint("Equal", 10, 14),
    Sketcher.Constraint("Equal", 11, 15),
    Sketcher.Constraint("Equal", 13, 17),
    Sketcher.Constraint("Equal", 14, 18),
    Sketcher.Constraint("Equal", 15, 19),
    Sketcher.Constraint("Equal", 17, 21),
    Sketcher.Constraint("Equal", 18, 22),
    Sketcher.Constraint("Equal", 19, 23),
    Sketcher.Constraint("Equal", 21, 25),
    Sketcher.Constraint("Equal", 22, 26),
    Sketcher.Constraint("Equal", 23, 27),
    Sketcher.Constraint("Equal", 25, 29),
    Sketcher.Constraint("Equal", 26, 30),
    Sketcher.Constraint("Equal", 27, 31),
    Sketcher.Constraint("Symmetric", 1, 3, 17, 3, -1, 1),
    Sketcher.Constraint("Symmetric", 3, 3, 19, 3, -1, 1),
    Sketcher.Constraint("Symmetric", 5, 3, 21, 3, -1, 1),
    Sketcher.Constraint("Symmetric", 7, 3, 23, 3, -1, 1),
    Sketcher.Constraint("Symmetric", 9, 3, 25, 3, -1, 1),
    Sketcher.Constraint("Symmetric", 11, 3, 27, 3, -1, 1),
    Sketcher.Constraint("Symmetric", 13, 3, 29, 3, -1, 1),
    Sketcher.Constraint("Symmetric", 15, 3, 31, 3, -1, 1),
    Sketcher.Constraint("Symmetric", 6, 3, 14, 3, -2),
    Sketcher.Constraint("Symmetric", 2, 3, 18, 3, -2),
    Sketcher.Constraint("Symmetric", 22, 3, 30, 3, -2),
    Sketcher.Constraint("Symmetric", 10, 3, 26, 3, -1),
    Sketcher.Constraint("Perpendicular", 0, 8),
    Sketcher.Constraint("Perpendicular", 4, 12),
    Sketcher.Constraint("Equal", 0, 4),
    Sketcher.Constraint("Equal", 4, 8),
    Sketcher.Constraint("Equal", 8, 12),
    Sketcher.Constraint("Radius", 1, Q("0.8 mm")),
    Sketcher.Constraint("Radius", 3, Q("2.5 mm")),
    Sketcher.Constraint("Radius", 2, Q("9.51 mm")),
    Sketcher.Constraint("Angle", 0, Q("67.5 deg")),
    Sketcher.Constraint("Angle", 4, Q("112.5 deg")),
    Sketcher.Constraint("DistanceX", -1, 1, 2, 3, Q("31.36 mm")),
    Sketcher.Constraint("DistanceY", -1, 1, 10, 3, Q("31.36 mm")),
    Sketcher.Constraint("DistanceX", -1, 1, 1, 3, Q("31.664802 mm")),
    Sketcher.Constraint("DistanceY", -1, 1, 9, 3, Q("31.664802 mm")),
    Sketcher.Constraint("DistanceY", 3, 3, 6, 3, Q("33.673502 mm")),
    Sketcher.Constraint("DistanceX", 14, 3, 11, 3, Q("33.673502 mm")),
    Sketcher.Constraint("DistanceY", 3, 2, 0, 2, Q("1.843701 mm")),
    Sketcher.Constraint("DistanceY", 7, 3, 6, 1, Q("1.184798 mm")),
    Sketcher.Constraint("DistanceX", 14, 1, 15, 3, Q("1.184798 mm")),
])
pad2 = doc.addObject("PartDesign::Pad", "Pad001")
body.addObject(pad2)
pad2.Profile = sketch6
pad2.Length = 5.52
pad2.Reversed = True

# Sketch on XZ plane
sketch7 = doc.addObject("Sketcher::SketchObject", "Sketch006")
body.addObject(sketch7)
sketch7.AttachmentSupport = (doc.XZ_Plane, [""])
sketch7.MapMode = "FlatFace"
sketch7.AttachmentOffset = App.Placement(Vector(0, 0, -6.48), App.Rotation())
sketch7.addGeometry([
    Part.Circle(Vector(10, 0, 0), Vector(0, 0, 1), 1.3),
    Part.Circle(Vector(0, -10, 0), Vector(0, 0, 1), 1.3),
    Part.Circle(Vector(-10, 0, 0), Vector(0, 0, 1), 1.3),
], False)
sketch7.addConstraint([
    Sketcher.Constraint("Equal", 0, 1),
    Sketcher.Constraint("Equal", 1, 2),
    Sketcher.Constraint("Symmetric", 0, 3, 2, 3, -1, 1),
    Sketcher.Constraint("PointOnObject", 0, 3, -1),
    Sketcher.Constraint("PointOnObject", 1, 3, -2),
    Sketcher.Constraint("Diameter", 0, Q("2.6 mm")),
    Sketcher.Constraint("DistanceX", -1, 1, 0, 3, Q("10 mm")),
    Sketcher.Constraint("DistanceY", 1, 3, -1, 1, Q("10 mm")),
])
pocket5 = doc.addObject("PartDesign::Pocket", "Pocket004")
body.addObject(pocket5)
pocket5.Profile = sketch7
pocket5.Type = "ThroughAll"

# Sketch on XZ plane
sketch8 = doc.addObject("Sketcher::SketchObject", "Sketch007")
body.addObject(sketch8)
sketch8.AttachmentSupport = (doc.XZ_Plane, [""])
sketch8.MapMode = "FlatFace"
sketch8.AttachmentOffset = App.Placement(Vector(0, 0, -7.5), App.Rotation())
sketch8.addGeometry([
    Part.Circle(Vector(0, 0, 0), Vector(0, 0, 1), 17.5),  # 0
    Part.Circle(Vector(0, -10, 0), Vector(0, 0, 1), 1.3),  # 1
    Part.Circle(Vector(-10, 0, 0), Vector(0, 0, 1), 1.3),  # 2
    Part.LineSegment(Vector(1.8, 2.5, 0), Vector(-1.8, 2.5, 0)),  # 3
    Part.ArcOfCircle(Part.Circle(Vector(0, 0, 0), Vector(0, 0, 1), 3.1), math.radians(126), math.radians(414)),  # 4
    Part.Circle(Vector(10, 0, 0), Vector(0, 0, 1), 1.3),  # 5
], False)
sketch8.addConstraint([
    Sketcher.Constraint("Coincident", 3, 1, 4, 2),
    Sketcher.Constraint("Coincident", 4, 1, 3, 2),
    Sketcher.Constraint("Horizontal", 3),
    Sketcher.Constraint("Coincident", 0, 3, -1, 1),
    Sketcher.Constraint("Coincident", 4, 3, -1, 1),
    Sketcher.Constraint("Equal", 1, 2),
    Sketcher.Constraint("Equal", 2, 5),
    Sketcher.Constraint("Symmetric", 2, 3, 5, 3, -1, 1),
    Sketcher.Constraint("PointOnObject", 1, 3, -2),
    Sketcher.Constraint("PointOnObject", 2, 3, -1),
    Sketcher.Constraint("Diameter", 0, Q("35 mm")),
    Sketcher.Constraint("Diameter", 1, Q("2.6 mm")),
    Sketcher.Constraint("Radius", 4, Q("3.1 mm")),
    Sketcher.Constraint("DistanceY", 1, 3, -1, 1, Q("10 mm")),
    Sketcher.Constraint("DistanceX", 2, 3, -1, 1, Q("10 mm")),
    Sketcher.Constraint("DistanceY", -1, 1, 3, 1, Q("2.5 mm")),
])
pad3 = doc.addObject("PartDesign::Pad", "Pad002")
body.addObject(pad3)
pad3.Profile = sketch8
pad3.Length = 2
pad3.Reversed = True

doc.recompute()
